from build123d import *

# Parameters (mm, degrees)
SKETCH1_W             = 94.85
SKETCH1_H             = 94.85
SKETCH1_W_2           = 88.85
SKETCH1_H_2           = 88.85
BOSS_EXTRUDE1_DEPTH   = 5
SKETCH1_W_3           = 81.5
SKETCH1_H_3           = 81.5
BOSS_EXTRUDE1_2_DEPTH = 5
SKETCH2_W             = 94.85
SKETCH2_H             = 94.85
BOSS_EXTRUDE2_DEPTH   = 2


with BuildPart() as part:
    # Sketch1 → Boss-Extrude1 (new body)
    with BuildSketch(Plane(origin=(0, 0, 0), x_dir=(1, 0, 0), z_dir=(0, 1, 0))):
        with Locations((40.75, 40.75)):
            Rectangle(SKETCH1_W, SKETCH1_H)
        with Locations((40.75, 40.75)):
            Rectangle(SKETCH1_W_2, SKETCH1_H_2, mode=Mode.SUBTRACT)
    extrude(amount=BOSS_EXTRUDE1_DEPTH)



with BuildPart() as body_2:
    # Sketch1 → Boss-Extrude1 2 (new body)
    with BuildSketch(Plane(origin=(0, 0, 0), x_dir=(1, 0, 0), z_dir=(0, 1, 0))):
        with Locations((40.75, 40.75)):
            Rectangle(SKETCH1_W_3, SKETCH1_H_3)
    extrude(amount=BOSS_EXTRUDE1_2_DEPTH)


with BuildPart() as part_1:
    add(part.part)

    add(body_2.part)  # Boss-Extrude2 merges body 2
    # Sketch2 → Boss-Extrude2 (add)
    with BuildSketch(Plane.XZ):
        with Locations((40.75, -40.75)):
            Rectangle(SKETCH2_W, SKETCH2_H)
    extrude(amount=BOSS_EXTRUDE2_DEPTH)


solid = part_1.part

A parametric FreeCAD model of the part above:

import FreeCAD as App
import Part
import Sketcher
Q = App.Units.Quantity

doc = App.newDocument("Part")
params = doc.addObject("Spreadsheet::Sheet", "Params")
for row, (alias, value) in enumerate([
    ("sketch1_width", "94.85 mm"),
    ("pad1_length", "5 mm"),
    ("sketch2_width", "81.5 mm"),
    ("pad2_length", "5 mm"),
    ("sketch3_width", "94.85 mm"),
    ("pad3_length", "2 mm"),
], start=1):
    params.set(f"A{row}", alias)
    params.set(f"B{row}", "=" + value)
    params.setAlias(f"B{row}", alias)

body = doc.addObject("PartDesign::Body", "Body")

sketch1 = doc.addObject("Sketcher::SketchObject", "Sketch")
body.addObject(sketch1)
sketch1.AttachmentSupport = (doc.XZ_Plane, [""])
sketch1.MapMode = "FlatFace"
sketch1.addGeometry([
    Part.LineSegment(App.Vector(-7, -88, 0), App.Vector(-7, 7, 0)),
    Part.LineSegment(App.Vector(-7, 7, 0), App.Vector(88, 7, 0)),
    Part.LineSegment(App.Vector(88, 7, 0), App.Vector(88, -88, 0)),
    Part.LineSegment(App.Vector(88, -88, 0), App.Vector(-7, -88, 0)),
    Part.LineSegment(App.Vector(85, 4, 0), App.Vector(-4, 4, 0)),
    Part.LineSegment(App.Vector(-4, 4, 0), App.Vector(-4, -85, 0)),
    Part.LineSegment(App.Vector(-4, -85, 0), App.Vector(85, -85, 0)),
    Part.LineSegment(App.Vector(85, -85, 0), App.Vector(85, 4, 0)),
], False)
sketch1.addConstraint([
    Sketcher.Constraint("Coincident", 0, 2, 1, 1),
    Sketcher.Constraint("Coincident", 1, 2, 2, 1),
    Sketcher.Constraint("Coincident", 2, 2, 3, 1),
    Sketcher.Constraint("Coincident", 3, 2, 0, 1),
    Sketcher.Constraint("Coincident", 4, 2, 5, 1),
    Sketcher.Constraint("Coincident", 5, 2, 6, 1),
    Sketcher.Constraint("Coincident", 6, 2, 7, 1),
    Sketcher.Constraint("Coincident", 7, 2, 4, 1),
    Sketcher.Constraint("Vertical", 0),
    Sketcher.Constraint("Horizontal", 1),
    Sketcher.Constraint("Vertical", 2),
    Sketcher.Constraint("Horizontal", 3),
    Sketcher.Constraint("Horizontal", 4),
    Sketcher.Constraint("Vertical", 5),
    Sketcher.Constraint("Horizontal", 6),
    Sketcher.Constraint("Vertical", 7),
    Sketcher.Constraint("Equal", 3, 0),
    Sketcher.Constraint("Equal", 6, 5),
    Sketcher.Constraint("DistanceX", 0, 2, 4, 2, Q("3 mm")),
    Sketcher.Constraint("DistanceY", 4, 2, 0, 2, Q("3 mm")),
    Sketcher.Constraint("DistanceY", 3, 2, 5, 2, Q("3 mm")),
    Sketcher.Constraint("DistanceX", 1, 1, 1, 2, Q("94.85 mm")),
    Sketcher.Constraint("DistanceX", 0, 2, -1, 1, Q("6.675 mm")),
    Sketcher.Constraint("DistanceY", -1, 1, 0, 2, Q("6.675 mm")),
])
sketch1.setExpression("Constraints[21]", "Params.sketch1_width")
pad1 = doc.addObject("PartDesign::Pad", "Pad")
body.addObject(pad1)
pad1.Profile = sketch1
pad1.setExpression("Length", "Params.pad1_length")
pad1.Reversed = True
body2 = doc.addObject("PartDesign::Body", "Body001")

sketch2 = doc.addObject("Sketcher::SketchObject", "Sketch001")
body2.addObject(sketch2)
sketch2.AttachmentSupport = (doc.getObject("XZ_Plane001"), [""])
sketch2.MapMode = "FlatFace"
sketch2.addGeometry([
    Part.LineSegment(App.Vector(0, -82, 0), App.Vector(0, 0, 0)),
    Part.LineSegment(App.Vector(0, 0, 0), App.Vector(82, 0, 0)),
    Part.LineSegment(App.Vector(82, 0, 0), App.Vector(82, -82, 0)),
    Part.LineSegment(App.Vector(82, -82, 0), App.Vector(0, -82, 0)),
], False)
sketch2.addConstraint([
    Sketcher.Constraint("Coincident", 0, 2, 1, 1),
    Sketcher.Constraint("Coincident", 1, 2, 2, 1),
    Sketcher.Constraint("Coincident", 2, 2, 3, 1),
    Sketcher.Constraint("Coincident", 3, 2, 0, 1),
    Sketcher.Constraint("Vertical", 0),
    Sketcher.Constraint("Horizontal", 1),
    Sketcher.Constraint("Vertical", 2),
    Sketcher.Constraint("Horizontal", 3),
    Sketcher.Constraint("Coincident", 0, 2, -1, 1),
    Sketcher.Constraint("Equal", 3, 0),
    Sketcher.Constraint("DistanceX", 1, 1, 1, 2, Q("81.5 mm")),
])
sketch2.setExpression("Constraints[10]", "Params.sketch2_width")
pad2 = doc.addObject("PartDesign::Pad", "Pad001")
body2.addObject(pad2)
pad2.Profile = sketch2
pad2.setExpression("Length", "Params.pad2_length")
pad2.Reversed = True
body.AllowCompound = True
doc.recompute()

boolean = doc.addObject("PartDesign::Boolean", "Boolean")
body.addObject(boolean)
boolean.Type = "Fuse"
boolean.addObjects([body2])

sketch3 = doc.addObject("Sketcher::SketchObject", "Sketch002")
body.addObject(sketch3)
sketch3.AttachmentSupport = (doc.XZ_Plane, [""])
sketch3.MapMode = "FlatFace"
sketch3.addGeometry([
    Part.LineSegment(App.Vector(-7, 7, 0), App.Vector(-7, -88, 0)),
    Part.LineSegment(App.Vector(-7, -88, 0), App.Vector(88, -88, 0)),
    Part.LineSegment(App.Vector(88, -88, 0), App.Vector(88, 7, 0)),
    Part.LineSegment(App.Vector(88, 7, 0), App.Vector(-7, 7, 0)),
], False)
sketch3.addConstraint([
    Sketcher.Constraint("Coincident", 0, 2, 1, 1),
    Sketcher.Constraint("Coincident", 1, 2, 2, 1),
    Sketcher.Constraint("Coincident", 2, 2, 3, 1),
    Sketcher.Constraint("Coincident", 3, 2, 0, 1),
    Sketcher.Constraint("Vertical", 0),
    Sketcher.Constraint("Horizontal", 1),
    Sketcher.Constraint("Vertical", 2),
    Sketcher.Constraint("Horizontal", 3),
    Sketcher.Constraint("Equal", 3, 0),
    Sketcher.Constraint("DistanceX", 1, 1, 1, 2, Q("94.85 mm")),
    Sketcher.Constraint("DistanceX", 0, 2, -1, 1, Q("6.675 mm")),
    Sketcher.Constraint("DistanceY", 0, 2, -1, 1, Q("88.175 mm")),
])
sketch3.setExpression("Constraints[9]", "Params.sketch3_width")
pad3 = doc.addObject("PartDesign::Pad", "Pad002")
body.addObject(pad3)
pad3.Profile = sketch3
pad3.setExpression("Length", "Params.pad3_length")

doc.recompute()
